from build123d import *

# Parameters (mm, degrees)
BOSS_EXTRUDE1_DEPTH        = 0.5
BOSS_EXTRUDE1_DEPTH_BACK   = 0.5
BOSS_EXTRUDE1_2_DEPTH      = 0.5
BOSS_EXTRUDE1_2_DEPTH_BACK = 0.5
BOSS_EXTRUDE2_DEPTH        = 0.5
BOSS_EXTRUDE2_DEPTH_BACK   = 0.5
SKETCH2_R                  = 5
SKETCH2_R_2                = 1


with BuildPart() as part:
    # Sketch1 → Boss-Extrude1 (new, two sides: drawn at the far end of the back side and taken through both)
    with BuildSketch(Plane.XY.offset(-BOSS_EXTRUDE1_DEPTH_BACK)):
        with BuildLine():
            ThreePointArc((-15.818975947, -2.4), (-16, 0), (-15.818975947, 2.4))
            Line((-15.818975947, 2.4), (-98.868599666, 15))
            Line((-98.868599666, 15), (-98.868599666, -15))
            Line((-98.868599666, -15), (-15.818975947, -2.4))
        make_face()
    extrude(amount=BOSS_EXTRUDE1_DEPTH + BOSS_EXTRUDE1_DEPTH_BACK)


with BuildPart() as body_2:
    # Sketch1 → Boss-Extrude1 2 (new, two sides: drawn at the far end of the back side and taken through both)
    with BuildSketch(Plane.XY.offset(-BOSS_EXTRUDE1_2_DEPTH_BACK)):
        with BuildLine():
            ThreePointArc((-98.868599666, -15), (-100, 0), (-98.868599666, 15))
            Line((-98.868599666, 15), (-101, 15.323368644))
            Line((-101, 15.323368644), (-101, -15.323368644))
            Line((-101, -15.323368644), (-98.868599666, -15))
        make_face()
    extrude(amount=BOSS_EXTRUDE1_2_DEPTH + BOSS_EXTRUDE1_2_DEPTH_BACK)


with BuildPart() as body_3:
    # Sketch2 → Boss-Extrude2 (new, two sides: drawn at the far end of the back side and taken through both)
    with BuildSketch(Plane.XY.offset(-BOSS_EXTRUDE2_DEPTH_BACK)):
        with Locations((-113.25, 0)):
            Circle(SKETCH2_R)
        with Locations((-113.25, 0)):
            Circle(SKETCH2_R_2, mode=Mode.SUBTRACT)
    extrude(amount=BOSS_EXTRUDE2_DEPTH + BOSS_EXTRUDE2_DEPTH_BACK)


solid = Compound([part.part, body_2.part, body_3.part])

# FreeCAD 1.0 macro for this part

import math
import FreeCAD as App
import Part
import Sketcher
from FreeCAD import Vector

doc = App.newDocument("Part")
body = doc.addObject("PartDesign::Body", "Body")

# Sketch on XY plane
sketch1 = body.newObject("Sketcher::SketchObject", "Sketch")
sketch1.AttachmentSupport = (doc.getObject("XY_Plane"), [""])
sketch1.MapMode = "FlatFace"
sketch1.addGeometry([
    Part.ArcOfCircle(Part.Circle(Vector(0, 0, 0), Vector(0, 0, 1), 16), math.radians(171.37), math.radians(188.63)),
    Part.LineSegment(Vector(-15.8, 2.4, 0), Vector(-98.9, 15, 0)),
    Part.LineSegment(Vector(-98.9, 15, 0), Vector(-98.9, -15, 0)),
    Part.LineSegment(Vector(-98.9, -15, 0), Vector(-15.8, -2.4, 0)),
], False)
sketch1.addConstraint([
    Sketcher.Constraint("Coincident", 0, 1, 1, 1),
    Sketcher.Constraint("Coincident", 1, 2, 2, 1),
    Sketcher.Constraint("Coincident", 2, 2, 3, 1),
    Sketcher.Constraint("Coincident", 3, 2, 0, 2),
    Sketcher.Constraint("Vertical", 2),
    Sketcher.Constraint("Coincident", 0, 3, -1, 1),
    Sketcher.Constraint("Vertical", 0, 1, 3, 2),
    Sketcher.Constraint("Equal", 1, 3),
    Sketcher.Constraint("Radius", 0, 16.0),
    Sketcher.Constraint("DistanceY", 2, 2, 2, 1, 30.0),
    Sketcher.Constraint("Distance", 1, 84.0),
    Sketcher.Constraint("DistanceY", -1, 1, 0, 1, 2.4),
])
pad1 = body.newObject("PartDesign::Pad", "Pad")
pad1.Profile = sketch1
pad1.Type = "TwoLengths"
pad1.Length = 0.5
pad1.Length2 = 0.5
body2 = doc.addObject("PartDesign::Body", "Body001")

# Sketch on XY plane
sketch2 = body2.newObject("Sketcher::SketchObject", "Sketch001")
sketch2.AttachmentSupport = (doc.getObject("XY_Plane001"), [""])
sketch2.MapMode = "FlatFace"
sketch2.addGeometry([
    Part.ArcOfCircle(Part.Circle(Vector(0, 0, 0), Vector(0, 0, 1), 100), math.radians(171.37), math.radians(188.63)),
    Part.LineSegment(Vector(-98.9, 15, 0), Vector(-101, 15.3, 0)),
    Part.LineSegment(Vector(-101, 15.3, 0), Vector(-101, -15.3, 0)),
    Part.LineSegment(Vector(-101, -15.3, 0), Vector(-98.9, -15, 0)),
], False)
sketch2.addConstraint([
    Sketcher.Constraint("Coincident", 0, 1, 1, 1),
    Sketcher.Constraint("Coincident", 1, 2, 2, 1),
    Sketcher.Constraint("Coincident", 2, 2, 3, 1),
    Sketcher.Constraint("Coincident", 3, 2, 0, 2),
    Sketcher.Constraint("Vertical", 2),
    Sketcher.Constraint("Coincident", 0, 3, -1, 1),
    Sketcher.Constraint("Vertical", 0, 1, 3, 2),
    Sketcher.Constraint("Equal", 1, 3),
    Sketcher.Constraint("Radius", 0, 100.0),
    Sketcher.Constraint("DistanceY", -1, 1, 0, 1, 15.0),
    Sketcher.Constraint("DistanceX", 1, 2, -1, 1, 101.0),
    Sketcher.Constraint("Distance", 1, 2.155791),
])
pad2 = body2.newObject("PartDesign::Pad", "Pad001")
pad2.Profile = sketch2
pad2.Type = "TwoLengths"
pad2.Length = 0.5
pad2.Length2 = 0.5
body3 = doc.addObject("PartDesign::Body", "Body002")

# Sketch on XY plane
sketch3 = body3.newObject("Sketcher::SketchObject", "Sketch002")
sketch3.AttachmentSupport = (doc.getObject("XY_Plane002"), [""])
sketch3.MapMode = "FlatFace"
sketch3.addGeometry([
    Part.Circle(Vector(-113.2, 0, 0), Vector(0, 0, 1), 5),
    Part.Circle(Vector(-113.2, 0, 0), Vector(0, 0, 1), 1),
], False)
sketch3.addConstraint([
    Sketcher.Constraint("Coincident", 1, 3, 0, 3),
    Sketcher.Constraint("PointOnObject", 0, 3, -1),
    Sketcher.Constraint("Diameter", 0, 10.0),
    Sketcher.Constraint("Diameter", 1, 2.0),
    Sketcher.Constraint("DistanceX", 0, 3, -1, 1, 113.25),
])
pad3 = body3.newObject("PartDesign::Pad", "Pad002")
pad3.Profile = sketch3
pad3.Type = "TwoLengths"
pad3.Length = 0.5
pad3.Length2 = 0.5

doc.recompute()
